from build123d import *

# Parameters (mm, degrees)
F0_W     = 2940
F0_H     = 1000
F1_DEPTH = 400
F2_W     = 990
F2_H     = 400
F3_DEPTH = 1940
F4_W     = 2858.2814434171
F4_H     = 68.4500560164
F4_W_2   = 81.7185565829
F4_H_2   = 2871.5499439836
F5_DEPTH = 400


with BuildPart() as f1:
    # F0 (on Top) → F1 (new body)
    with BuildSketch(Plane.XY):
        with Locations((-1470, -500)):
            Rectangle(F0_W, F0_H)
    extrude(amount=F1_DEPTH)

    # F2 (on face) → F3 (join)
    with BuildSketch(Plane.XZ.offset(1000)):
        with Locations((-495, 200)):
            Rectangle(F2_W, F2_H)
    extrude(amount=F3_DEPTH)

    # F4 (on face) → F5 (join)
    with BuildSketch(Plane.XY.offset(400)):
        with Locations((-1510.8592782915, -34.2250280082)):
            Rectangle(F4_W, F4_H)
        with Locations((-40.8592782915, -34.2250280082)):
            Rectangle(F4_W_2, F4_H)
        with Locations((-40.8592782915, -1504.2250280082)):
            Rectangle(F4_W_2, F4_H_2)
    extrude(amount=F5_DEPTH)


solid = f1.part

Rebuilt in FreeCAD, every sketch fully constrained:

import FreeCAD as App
import Part
import Sketcher

V = App.Vector
Q = App.Units.Quantity

doc = App.newDocument("Part")
body = doc.addObject("PartDesign::Body", "Body")

# Sketch on XY plane
sketch1 = doc.addObject("Sketcher::SketchObject", "Sketch")
body.addObject(sketch1)
sketch1.AttachmentSupport = (doc.XY_Plane, [""])
sketch1.MapMode = "FlatFace"
sketch1.addGeometry([
    Part.LineSegment(V(-2940, 0, 0), V(-2940, -1000, 0)),
    Part.LineSegment(V(-2940, -1000, 0), V(0, -1000, 0)),
    Part.LineSegment(V(0, -1000, 0), V(0, 0, 0)),
    Part.LineSegment(V(0, 0, 0), V(-2940, 0, 0)),
], False)
sketch1.addConstraint([
    Sketcher.Constraint("Coincident", 0, 2, 1, 1),
    Sketcher.Constraint("Coincident", 1, 2, 2, 1),
    Sketcher.Constraint("Coincident", 2, 2, 3, 1),
    Sketcher.Constraint("Coincident", 3, 2, 0, 1),
    Sketcher.Constraint("Vertical", 0),
    Sketcher.Constraint("Horizontal", 1),
    Sketcher.Constraint("Vertical", 2),
    Sketcher.Constraint("Horizontal", 3),
    Sketcher.Constraint("Coincident", 2, 2, -1, 1),
    Sketcher.Constraint("DistanceX", 1, 1, 1, 2, Q("2940 mm")),
    Sketcher.Constraint("DistanceY", 0, 2, 0, 1, Q("1000 mm")),
])
pad1 = doc.addObject("PartDesign::Pad", "Pad")
body.addObject(pad1)
pad1.Profile = sketch1
pad1.Length = 400

# Sketch on XZ plane
sketch2 = doc.addObject("Sketcher::SketchObject", "Sketch001")
body.addObject(sketch2)
sketch2.AttachmentSupport = (doc.XZ_Plane, [""])
sketch2.MapMode = "FlatFace"
sketch2.AttachmentOffset = App.Placement(V(0, 0, 1000), App.Rotation())
sketch2.addGeometry([
    Part.LineSegment(V(-990, 400, 0), V(-990, 0, 0)),
    Part.LineSegment(V(-990, 0, 0), V(0, 0, 0)),
    Part.LineSegment(V(0, 0, 0), V(0, 400, 0)),
    Part.LineSegment(V(0, 400, 0), V(-990, 400, 0)),
], False)
sketch2.addConstraint([
    Sketcher.Constraint("Coincident", 0, 2, 1, 1),
    Sketcher.Constraint("Coincident", 1, 2, 2, 1),
    Sketcher.Constraint("Coincident", 2, 2, 3, 1),
    Sketcher.Constraint("Coincident", 3, 2, 0, 1),
    Sketcher.Constraint("Vertical", 0),
    Sketcher.Constraint("Horizontal", 1),
    Sketcher.Constraint("Vertical", 2),
    Sketcher.Constraint("Horizontal", 3),
    Sketcher.Constraint("Coincident", 1, 2, -1, 1),
    Sketcher.Constraint("DistanceX", 1, 1, 1, 2, Q("990 mm")),
    Sketcher.Constraint("DistanceY", 0, 2, 0, 1, Q("400 mm")),
])
pad2 = doc.addObject("PartDesign::Pad", "Pad001")
body.addObject(pad2)
pad2.Profile = sketch2
pad2.Length = 1940

# Sketch on XY plane
sketch3 = doc.addObject("Sketcher::SketchObject", "Sketch002")
body.addObject(sketch3)
sketch3.AttachmentSupport = (doc.XY_Plane, [""])
sketch3.MapMode = "FlatFace"
sketch3.AttachmentOffset = App.Placement(V(0, 0, 400), App.Rotation())
sketch3.addGeometry([
    Part.LineSegment(V(-2940, 0, 0), V(-2940, -68, 0)),  # 0
    Part.LineSegment(V(-2940, -68, 0), V(-82, -68, 0)),  # 1
    Part.LineSegment(V(-82, -68, 0), V(-82, -2940, 0)),  # 2
    Part.LineSegment(V(-82, -2940, 0), V(0, -2940, 0)),  # 3
    Part.LineSegment(V(0, -2940, 0), V(0, 0, 0)),  # 4
    Part.LineSegment(V(0, 0, 0), V(-2940, 0, 0)),  # 5
], False)
sketch3.addConstraint([
    Sketcher.Constraint("Coincident", 0, 2, 1, 1),
    Sketcher.Constraint("Coincident", 1, 2, 2, 1),
    Sketcher.Constraint("Coincident", 2, 2, 3, 1),
    Sketcher.Constraint("Coincident", 3, 2, 4, 1),
    Sketcher.Constraint("Coincident", 4, 2, 5, 1),
    Sketcher.Constraint("Coincident", 5, 2, 0, 1),
    Sketcher.Constraint("Vertical", 0),
    Sketcher.Constraint("Horizontal", 1),
    Sketcher.Constraint("Vertical", 2),
    Sketcher.Constraint("Horizontal", 3),
    Sketcher.Constraint("Vertical", 4),
    Sketcher.Constraint("Horizontal", 5),
    Sketcher.Constraint("Coincident", 4, 2, -1, 1),
    Sketcher.Constraint("Equal", 5, 4),
    Sketcher.Constraint("DistanceX", 5, 2, 5, 1, Q("2940 mm")),
    Sketcher.Constraint("DistanceX", 1, 1, 1, 2, Q("2858.281443 mm")),
    Sketcher.Constraint("DistanceY", 0, 2, 0, 1, Q("68.450056 mm")),
])
pad3 = doc.addObject("PartDesign::Pad", "Pad002")
body.addObject(pad3)
pad3.Profile = sketch3
pad3.Length = 400

doc.recompute()
